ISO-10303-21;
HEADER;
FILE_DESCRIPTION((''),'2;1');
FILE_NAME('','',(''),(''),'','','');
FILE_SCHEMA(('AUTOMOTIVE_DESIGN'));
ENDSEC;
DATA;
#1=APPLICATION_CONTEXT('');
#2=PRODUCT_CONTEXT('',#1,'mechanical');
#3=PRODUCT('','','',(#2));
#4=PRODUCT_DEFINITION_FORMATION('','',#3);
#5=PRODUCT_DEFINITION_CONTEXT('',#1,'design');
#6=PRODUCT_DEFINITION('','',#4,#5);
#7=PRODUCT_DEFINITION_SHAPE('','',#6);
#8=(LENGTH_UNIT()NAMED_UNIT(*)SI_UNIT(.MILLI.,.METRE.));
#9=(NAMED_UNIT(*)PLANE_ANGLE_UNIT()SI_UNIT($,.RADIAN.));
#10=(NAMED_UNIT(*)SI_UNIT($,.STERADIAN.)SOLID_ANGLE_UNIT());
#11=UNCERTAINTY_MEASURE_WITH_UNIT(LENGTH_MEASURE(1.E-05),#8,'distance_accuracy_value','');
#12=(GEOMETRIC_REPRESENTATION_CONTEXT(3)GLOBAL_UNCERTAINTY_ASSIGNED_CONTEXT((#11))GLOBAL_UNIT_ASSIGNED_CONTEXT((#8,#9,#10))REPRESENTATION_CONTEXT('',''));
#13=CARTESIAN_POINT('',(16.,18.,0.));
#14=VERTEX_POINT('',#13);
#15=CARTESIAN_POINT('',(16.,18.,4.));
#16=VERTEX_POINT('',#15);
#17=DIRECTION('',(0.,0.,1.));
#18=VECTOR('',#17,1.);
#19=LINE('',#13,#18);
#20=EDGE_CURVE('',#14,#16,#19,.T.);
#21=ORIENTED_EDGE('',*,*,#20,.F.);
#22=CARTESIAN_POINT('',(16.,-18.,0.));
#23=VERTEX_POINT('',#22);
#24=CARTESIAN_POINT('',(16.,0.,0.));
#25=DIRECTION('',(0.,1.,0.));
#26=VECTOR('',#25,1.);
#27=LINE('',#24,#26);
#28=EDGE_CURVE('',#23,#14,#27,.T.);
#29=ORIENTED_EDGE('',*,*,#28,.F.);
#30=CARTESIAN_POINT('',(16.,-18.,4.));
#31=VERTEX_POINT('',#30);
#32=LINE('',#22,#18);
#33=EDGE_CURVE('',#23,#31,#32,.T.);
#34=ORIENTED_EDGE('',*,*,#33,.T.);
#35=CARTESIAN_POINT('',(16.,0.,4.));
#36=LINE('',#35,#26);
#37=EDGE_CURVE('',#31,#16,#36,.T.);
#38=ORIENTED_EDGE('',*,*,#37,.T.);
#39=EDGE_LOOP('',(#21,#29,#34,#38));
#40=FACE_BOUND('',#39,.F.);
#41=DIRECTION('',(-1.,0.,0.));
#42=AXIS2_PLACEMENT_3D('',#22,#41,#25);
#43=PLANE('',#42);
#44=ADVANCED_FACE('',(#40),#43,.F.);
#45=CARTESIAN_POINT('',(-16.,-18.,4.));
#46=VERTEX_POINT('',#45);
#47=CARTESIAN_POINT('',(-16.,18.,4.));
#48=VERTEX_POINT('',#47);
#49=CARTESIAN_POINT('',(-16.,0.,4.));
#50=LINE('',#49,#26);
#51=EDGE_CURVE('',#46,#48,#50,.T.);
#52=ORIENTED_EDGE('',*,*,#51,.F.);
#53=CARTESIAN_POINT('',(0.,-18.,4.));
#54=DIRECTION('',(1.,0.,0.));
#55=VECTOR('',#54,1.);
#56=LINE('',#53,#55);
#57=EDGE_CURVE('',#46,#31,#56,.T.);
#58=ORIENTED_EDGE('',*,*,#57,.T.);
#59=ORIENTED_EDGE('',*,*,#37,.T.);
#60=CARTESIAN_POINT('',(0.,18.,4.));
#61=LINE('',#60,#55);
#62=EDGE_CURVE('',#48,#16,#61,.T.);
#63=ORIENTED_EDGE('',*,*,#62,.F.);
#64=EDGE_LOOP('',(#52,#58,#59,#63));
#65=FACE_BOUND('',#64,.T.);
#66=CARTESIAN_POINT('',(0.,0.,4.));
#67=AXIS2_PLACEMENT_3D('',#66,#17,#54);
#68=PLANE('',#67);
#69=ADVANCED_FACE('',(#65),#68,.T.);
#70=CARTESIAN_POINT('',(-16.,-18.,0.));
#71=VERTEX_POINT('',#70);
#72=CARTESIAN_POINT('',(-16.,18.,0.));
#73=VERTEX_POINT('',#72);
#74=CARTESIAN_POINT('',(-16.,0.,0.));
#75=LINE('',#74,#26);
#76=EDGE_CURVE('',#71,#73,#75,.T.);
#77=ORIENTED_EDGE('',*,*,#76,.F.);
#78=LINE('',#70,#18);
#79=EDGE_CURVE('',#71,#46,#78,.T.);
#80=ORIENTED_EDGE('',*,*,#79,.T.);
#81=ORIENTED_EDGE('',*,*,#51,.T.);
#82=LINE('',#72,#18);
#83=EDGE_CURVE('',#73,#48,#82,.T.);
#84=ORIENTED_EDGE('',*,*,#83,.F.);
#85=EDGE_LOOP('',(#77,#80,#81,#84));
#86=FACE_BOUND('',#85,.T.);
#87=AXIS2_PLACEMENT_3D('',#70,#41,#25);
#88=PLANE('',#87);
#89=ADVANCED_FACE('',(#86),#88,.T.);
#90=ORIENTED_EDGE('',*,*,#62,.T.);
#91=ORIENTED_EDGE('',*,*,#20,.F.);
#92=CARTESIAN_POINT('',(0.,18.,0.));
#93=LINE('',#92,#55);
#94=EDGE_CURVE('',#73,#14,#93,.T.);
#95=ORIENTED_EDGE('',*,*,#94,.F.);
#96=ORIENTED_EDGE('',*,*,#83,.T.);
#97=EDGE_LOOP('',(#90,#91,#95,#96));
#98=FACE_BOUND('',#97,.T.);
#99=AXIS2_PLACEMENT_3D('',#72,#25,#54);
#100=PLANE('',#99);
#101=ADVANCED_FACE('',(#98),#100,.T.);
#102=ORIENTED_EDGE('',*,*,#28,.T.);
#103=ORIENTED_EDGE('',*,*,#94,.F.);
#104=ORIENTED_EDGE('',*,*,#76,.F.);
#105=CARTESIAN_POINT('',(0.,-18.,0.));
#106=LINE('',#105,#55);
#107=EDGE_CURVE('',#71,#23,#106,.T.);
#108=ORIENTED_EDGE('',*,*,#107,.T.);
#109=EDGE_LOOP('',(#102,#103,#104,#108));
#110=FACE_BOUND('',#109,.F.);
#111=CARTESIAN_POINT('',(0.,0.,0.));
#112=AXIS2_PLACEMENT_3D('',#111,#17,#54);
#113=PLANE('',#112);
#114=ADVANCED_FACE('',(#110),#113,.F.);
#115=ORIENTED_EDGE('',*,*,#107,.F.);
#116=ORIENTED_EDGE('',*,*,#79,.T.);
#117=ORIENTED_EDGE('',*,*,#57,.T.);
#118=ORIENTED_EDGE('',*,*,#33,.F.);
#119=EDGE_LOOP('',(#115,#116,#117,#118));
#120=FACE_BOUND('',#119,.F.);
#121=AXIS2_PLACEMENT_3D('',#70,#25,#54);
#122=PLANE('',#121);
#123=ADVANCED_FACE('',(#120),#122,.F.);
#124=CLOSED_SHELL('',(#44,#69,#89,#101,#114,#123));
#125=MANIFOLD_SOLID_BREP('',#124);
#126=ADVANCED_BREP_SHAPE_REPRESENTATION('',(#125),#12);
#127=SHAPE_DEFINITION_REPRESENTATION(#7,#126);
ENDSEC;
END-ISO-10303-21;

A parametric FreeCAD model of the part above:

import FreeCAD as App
import Part
import Sketcher

V = App.Vector
Q = App.Units.Quantity


def add_polygon(sketch, points):
    """Adds a closed chain of lines whose ends are joined by coincident constraints."""
    first, n = sketch.GeometryCount, len(points)
    for a, b in zip(points, points[1:] + points[:1]):
        sketch.addGeometry(Part.LineSegment(App.Vector(*a, 0), App.Vector(*b, 0)), False)
    for i in range(n):
        sketch.addConstraint(Sketcher.Constraint("Coincident", first + i, 2, first + (i + 1) % n, 1))

doc = App.newDocument("Part")
params = doc.addObject("Spreadsheet::Sheet", "Params")
for row, (alias, value) in enumerate([
    ("sketch1_width", "32 mm"),
    ("sketch1_height", "36 mm"),
    ("pad1_length", "4 mm"),
], start=1):
    params.set(f"A{row}", alias)
    params.set(f"B{row}", "=" + value)
    params.setAlias(f"B{row}", alias)

body = doc.addObject("PartDesign::Body", "Body")

sketch1 = doc.addObject("Sketcher::SketchObject", "Sketch")
body.addObject(sketch1)
sketch1.AttachmentSupport = (doc.XY_Plane, [""])
sketch1.MapMode = "FlatFace"
add_polygon(sketch1, [(-16, 18), (-16, -18), (16, -18), (16, 18)])
sketch1.addConstraint(Sketcher.Constraint("Vertical", 0))
sketch1.addConstraint(Sketcher.Constraint("Horizontal", 1))
sketch1.addConstraint(Sketcher.Constraint("Vertical", 2))
sketch1.addConstraint(Sketcher.Constraint("Horizontal", 3))
sketch1.addConstraint(Sketcher.Constraint("Symmetric", 0, 2, 2, 2, -1, 1))
sketch1.addConstraint(Sketcher.Constraint("DistanceX", 1, 1, 1, 2, Q("32 mm")))
sketch1.addConstraint(Sketcher.Constraint("DistanceY", 0, 2, 0, 1, Q("36 mm")))
sketch1.setExpression("Constraints[9]", "Params.sketch1_width")
sketch1.setExpression("Constraints[10]", "Params.sketch1_height")
pad1 = doc.addObject("PartDesign::Pad", "Pad")
body.addObject(pad1)
pad1.Profile = sketch1
pad1.setExpression("Length", "Params.pad1_length")

doc.recompute()
